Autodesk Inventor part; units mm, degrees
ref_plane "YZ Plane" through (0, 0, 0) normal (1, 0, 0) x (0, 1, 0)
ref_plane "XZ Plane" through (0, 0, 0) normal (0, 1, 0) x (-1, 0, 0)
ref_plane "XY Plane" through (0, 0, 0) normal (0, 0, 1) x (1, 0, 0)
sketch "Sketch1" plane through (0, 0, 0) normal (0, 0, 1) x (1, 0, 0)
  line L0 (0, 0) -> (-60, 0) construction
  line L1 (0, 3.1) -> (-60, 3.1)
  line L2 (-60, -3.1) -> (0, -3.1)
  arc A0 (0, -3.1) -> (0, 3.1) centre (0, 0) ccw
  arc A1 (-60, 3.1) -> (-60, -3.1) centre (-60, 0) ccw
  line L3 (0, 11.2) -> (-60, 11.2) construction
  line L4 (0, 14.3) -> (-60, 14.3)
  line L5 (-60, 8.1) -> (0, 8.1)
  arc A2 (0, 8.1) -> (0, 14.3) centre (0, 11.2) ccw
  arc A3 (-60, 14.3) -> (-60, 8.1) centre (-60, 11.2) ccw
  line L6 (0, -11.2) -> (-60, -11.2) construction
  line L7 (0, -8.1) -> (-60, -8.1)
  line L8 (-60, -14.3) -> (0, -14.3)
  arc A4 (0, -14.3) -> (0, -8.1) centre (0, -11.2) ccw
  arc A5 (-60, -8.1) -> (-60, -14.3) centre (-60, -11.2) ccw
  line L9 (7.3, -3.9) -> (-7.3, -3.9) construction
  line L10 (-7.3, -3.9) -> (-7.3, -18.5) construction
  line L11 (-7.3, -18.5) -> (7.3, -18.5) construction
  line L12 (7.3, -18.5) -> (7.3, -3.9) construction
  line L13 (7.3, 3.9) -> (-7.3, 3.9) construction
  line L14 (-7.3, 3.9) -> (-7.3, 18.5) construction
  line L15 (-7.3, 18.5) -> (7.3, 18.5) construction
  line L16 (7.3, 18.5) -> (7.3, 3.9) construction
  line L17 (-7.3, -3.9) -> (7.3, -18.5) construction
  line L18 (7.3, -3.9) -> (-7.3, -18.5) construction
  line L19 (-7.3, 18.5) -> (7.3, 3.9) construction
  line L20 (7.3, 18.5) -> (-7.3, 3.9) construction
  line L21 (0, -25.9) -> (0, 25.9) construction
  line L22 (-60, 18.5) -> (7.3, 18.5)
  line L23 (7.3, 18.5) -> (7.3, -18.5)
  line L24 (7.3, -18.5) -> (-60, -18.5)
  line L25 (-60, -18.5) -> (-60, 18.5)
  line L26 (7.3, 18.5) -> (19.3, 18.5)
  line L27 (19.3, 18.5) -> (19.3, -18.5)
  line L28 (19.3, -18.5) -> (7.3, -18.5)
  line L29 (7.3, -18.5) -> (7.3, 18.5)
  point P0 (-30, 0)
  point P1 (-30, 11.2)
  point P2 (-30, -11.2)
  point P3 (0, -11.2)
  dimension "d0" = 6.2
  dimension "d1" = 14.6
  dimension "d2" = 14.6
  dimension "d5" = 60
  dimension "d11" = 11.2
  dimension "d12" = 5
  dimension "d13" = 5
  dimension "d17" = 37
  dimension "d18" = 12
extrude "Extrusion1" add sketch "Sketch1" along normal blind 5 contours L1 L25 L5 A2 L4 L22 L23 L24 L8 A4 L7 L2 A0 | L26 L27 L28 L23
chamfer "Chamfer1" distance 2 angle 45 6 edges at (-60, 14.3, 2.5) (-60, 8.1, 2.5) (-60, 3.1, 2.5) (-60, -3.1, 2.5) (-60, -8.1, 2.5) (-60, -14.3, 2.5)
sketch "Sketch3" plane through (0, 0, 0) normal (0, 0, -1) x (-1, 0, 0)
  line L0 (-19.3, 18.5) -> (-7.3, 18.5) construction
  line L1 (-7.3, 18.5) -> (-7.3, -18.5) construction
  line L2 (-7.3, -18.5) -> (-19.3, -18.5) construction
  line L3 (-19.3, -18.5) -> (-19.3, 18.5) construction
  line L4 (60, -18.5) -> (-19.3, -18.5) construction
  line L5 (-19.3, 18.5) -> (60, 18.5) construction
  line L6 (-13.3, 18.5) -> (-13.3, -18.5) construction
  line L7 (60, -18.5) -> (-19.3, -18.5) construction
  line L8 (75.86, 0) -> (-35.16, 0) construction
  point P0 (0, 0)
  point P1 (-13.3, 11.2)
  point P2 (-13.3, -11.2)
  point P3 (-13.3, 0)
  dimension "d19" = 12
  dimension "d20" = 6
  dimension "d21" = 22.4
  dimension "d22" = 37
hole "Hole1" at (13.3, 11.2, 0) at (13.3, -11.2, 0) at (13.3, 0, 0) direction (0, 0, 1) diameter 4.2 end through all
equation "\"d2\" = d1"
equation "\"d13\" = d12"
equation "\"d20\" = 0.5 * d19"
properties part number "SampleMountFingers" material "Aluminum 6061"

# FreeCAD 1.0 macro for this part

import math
import FreeCAD as App
import Part
import Sketcher
Q = App.Units.Quantity


def edges_at(feature, points):
    """Names of the edges that pass closest to the given points."""
    edges = feature.Shape.Edges
    near = lambda p: min(range(len(edges)), key=lambda i: edges[i].distToShape(Part.Vertex(*p))[0])
    return sorted({f"Edge{near(p) + 1}" for p in points})

doc = App.newDocument("Part")
params = doc.addObject("Spreadsheet::Sheet", "Params")
for row, (alias, value) in enumerate([
    ("sketch1_radius", "3.1 mm"),
    ("sketch1_width", "60 mm"),
    ("sketch1_height", "5 mm"),
    ("sketch1_height2", "37 mm"),
    ("sketch1_width2", "79.3 mm"),
    ("pad1_length", "5 mm"),
    ("chamfer_size", "2 mm"),
    ("sketch2_diameter", "4.2 mm"),
    ("hole_diameter", "4.2 mm"),
], start=1):
    params.set(f"A{row}", alias)
    params.set(f"B{row}", "=" + value)
    params.setAlias(f"B{row}", alias)

body = doc.addObject("PartDesign::Body", "Body")

sketch1 = body.newObject("Sketcher::SketchObject", "Sketch")
sketch1.AttachmentSupport = (doc.getObject("XY_Plane"), [""])
sketch1.MapMode = "FlatFace"
sketch1.addGeometry([
    Part.LineSegment(App.Vector(-60, 3.1, 0), App.Vector(0, 3.1, 0)),
    Part.ArcOfCircle(Part.Circle(App.Vector(0, 0, 0), App.Vector(0, 0, 1), 3.1), math.radians(-90), math.radians(90)),
    Part.LineSegment(App.Vector(0, -3.1, 0), App.Vector(-60, -3.1, 0)),
    Part.LineSegment(App.Vector(-60, -3.1, 0), App.Vector(-60, -8.1, 0)),
    Part.LineSegment(App.Vector(-60, -8.1, 0), App.Vector(0, -8.1, 0)),
    Part.ArcOfCircle(Part.Circle(App.Vector(0, -11.2, 0), App.Vector(0, 0, 1), 3.1), math.radians(-90), math.radians(90)),
    Part.LineSegment(App.Vector(0, -14.3, 0), App.Vector(-60, -14.3, 0)),
    Part.LineSegment(App.Vector(-60, -14.3, 0), App.Vector(-60, -18.5, 0)),
    Part.LineSegment(App.Vector(-60, -18.5, 0), App.Vector(19.3, -18.5, 0)),
    Part.LineSegment(App.Vector(19.3, -18.5, 0), App.Vector(19.3, 18.5, 0)),
    Part.LineSegment(App.Vector(19.3, 18.5, 0), App.Vector(-60, 18.5, 0)),
    Part.LineSegment(App.Vector(-60, 18.5, 0), App.Vector(-60, 14.3, 0)),
    Part.LineSegment(App.Vector(-60, 14.3, 0), App.Vector(0, 14.3, 0)),
    Part.ArcOfCircle(Part.Circle(App.Vector(0, 11.2, 0), App.Vector(0, 0, 1), 3.1), math.radians(-90), math.radians(90)),
    Part.LineSegment(App.Vector(0, 8.1, 0), App.Vector(-60, 8.1, 0)),
    Part.LineSegment(App.Vector(-60, 8.1, 0), App.Vector(-60, 3.1, 0)),
], False)
sketch1.addConstraint([
    Sketcher.Constraint("Tangent", 0, 2, 1, 2),
    Sketcher.Constraint("Tangent", 1, 1, 2, 1),
    Sketcher.Constraint("Coincident", 2, 2, 3, 1),
    Sketcher.Constraint("Coincident", 3, 2, 4, 1),
    Sketcher.Constraint("Tangent", 4, 2, 5, 2),
    Sketcher.Constraint("Tangent", 5, 1, 6, 1),
    Sketcher.Constraint("Coincident", 6, 2, 7, 1),
    Sketcher.Constraint("Coincident", 7, 2, 8, 1),
    Sketcher.Constraint("Coincident", 8, 2, 9, 1),
    Sketcher.Constraint("Coincident", 9, 2, 10, 1),
    Sketcher.Constraint("Coincident", 10, 2, 11, 1),
    Sketcher.Constraint("Coincident", 11, 2, 12, 1),
    Sketcher.Constraint("Tangent", 12, 2, 13, 2),
    Sketcher.Constraint("Tangent", 13, 1, 14, 1),
    Sketcher.Constraint("Coincident", 14, 2, 15, 1),
    Sketcher.Constraint("Coincident", 15, 2, 0, 1),
    Sketcher.Constraint("Horizontal", 0),
    Sketcher.Constraint("Horizontal", 2),
    Sketcher.Constraint("Vertical", 3),
    Sketcher.Constraint("Horizontal", 4),
    Sketcher.Constraint("Horizontal", 6),
    Sketcher.Constraint("Vertical", 7),
    Sketcher.Constraint("Horizontal", 8),
    Sketcher.Constraint("Vertical", 9),
    Sketcher.Constraint("Horizontal", 10),
    Sketcher.Constraint("Vertical", 11),
    Sketcher.Constraint("Horizontal", 12),
    Sketcher.Constraint("Horizontal", 14),
    Sketcher.Constraint("Vertical", 15),
    Sketcher.Constraint("Coincident", 1, 3, -1, 1),
    Sketcher.Constraint("Equal", 1, 5),
    Sketcher.Constraint("Equal", 5, 13),
    Sketcher.Constraint("Symmetric", 5, 3, 13, 3, -1, 1),
    Sketcher.Constraint("Symmetric", 7, 2, 10, 2, -1),
    Sketcher.Constraint("PointOnObject", 5, 3, -2),
    Sketcher.Constraint("Vertical", 3, 2, 6, 2),
    Sketcher.Constraint("Vertical", 11, 2, 14, 2),
    Sketcher.Constraint("Radius", 1, Q("3.1 mm")),
    Sketcher.Constraint("DistanceX", 0, 1, 0, 2, Q("60 mm")),
    Sketcher.Constraint("DistanceY", 3, 2, 3, 1, Q("5 mm")),
    Sketcher.Constraint("DistanceY", 9, 1, 9, 2, Q("37 mm")),
    Sketcher.Constraint("DistanceX", 8, 1, 8, 2, Q("79.3 mm")),
])
sketch1.setExpression("Constraints[37]", "Params.sketch1_radius")
sketch1.setExpression("Constraints[38]", "Params.sketch1_width")
sketch1.setExpression("Constraints[39]", "Params.sketch1_height")
sketch1.setExpression("Constraints[40]", "Params.sketch1_height2")
sketch1.setExpression("Constraints[41]", "Params.sketch1_width2")
pad1 = body.newObject("PartDesign::Pad", "Pad")
pad1.Profile = sketch1
pad1.setExpression("Length", "Params.pad1_length")
doc.recompute()

chamfer = body.newObject("PartDesign::Chamfer", "Chamfer")
chamfer.Base = (pad1, edges_at(pad1, [
    (-60, 14.3, 2.5),
    (-60, 8.1, 2.5),
    (-60, 3.1, 2.5),
    (-60, -3.1, 2.5),
    (-60, -8.1, 2.5),
    (-60, -14.3, 2.5),
]))
chamfer.setExpression("Size", "Params.chamfer_size")

sketch2 = body.newObject("Sketcher::SketchObject", "Sketch001")
sketch2.AttachmentSupport = (doc.getObject("XY_Plane"), [""])
sketch2.MapMode = "FlatFace"
sketch2.addGeometry([
    Part.Circle(App.Vector(13.3, 11.2, 0), App.Vector(0, 0, 1), 2.1),
    Part.Circle(App.Vector(13.3, -11.2, 0), App.Vector(0, 0, 1), 2.1),
    Part.Circle(App.Vector(13.3, 0, 0), App.Vector(0, 0, 1), 2.1),
], False)
sketch2.addConstraint([
    Sketcher.Constraint("Equal", 0, 1),
    Sketcher.Constraint("Equal", 1, 2),
    Sketcher.Constraint("Symmetric", 0, 3, 1, 3, -1),
    Sketcher.Constraint("PointOnObject", 2, 3, -1),
    Sketcher.Constraint("Vertical", 1, 3, 2, 3),
    Sketcher.Constraint("Diameter", 0, Q("4.2 mm")),
    Sketcher.Constraint("DistanceX", -1, 1, 0, 3, Q("13.3 mm")),
    Sketcher.Constraint("DistanceY", -1, 1, 0, 3, Q("11.2 mm")),
])
sketch2.setExpression("Constraints[5]", "Params.sketch2_diameter")
doc.recompute()
hole = body.newObject("PartDesign::Hole", "Hole")
hole.Profile = sketch2
hole.ThreadType = "None"
hole.setExpression("Diameter", "Params.hole_diameter")
hole.DepthType = "ThroughAll"
hole.Reversed = True

doc.recompute()
